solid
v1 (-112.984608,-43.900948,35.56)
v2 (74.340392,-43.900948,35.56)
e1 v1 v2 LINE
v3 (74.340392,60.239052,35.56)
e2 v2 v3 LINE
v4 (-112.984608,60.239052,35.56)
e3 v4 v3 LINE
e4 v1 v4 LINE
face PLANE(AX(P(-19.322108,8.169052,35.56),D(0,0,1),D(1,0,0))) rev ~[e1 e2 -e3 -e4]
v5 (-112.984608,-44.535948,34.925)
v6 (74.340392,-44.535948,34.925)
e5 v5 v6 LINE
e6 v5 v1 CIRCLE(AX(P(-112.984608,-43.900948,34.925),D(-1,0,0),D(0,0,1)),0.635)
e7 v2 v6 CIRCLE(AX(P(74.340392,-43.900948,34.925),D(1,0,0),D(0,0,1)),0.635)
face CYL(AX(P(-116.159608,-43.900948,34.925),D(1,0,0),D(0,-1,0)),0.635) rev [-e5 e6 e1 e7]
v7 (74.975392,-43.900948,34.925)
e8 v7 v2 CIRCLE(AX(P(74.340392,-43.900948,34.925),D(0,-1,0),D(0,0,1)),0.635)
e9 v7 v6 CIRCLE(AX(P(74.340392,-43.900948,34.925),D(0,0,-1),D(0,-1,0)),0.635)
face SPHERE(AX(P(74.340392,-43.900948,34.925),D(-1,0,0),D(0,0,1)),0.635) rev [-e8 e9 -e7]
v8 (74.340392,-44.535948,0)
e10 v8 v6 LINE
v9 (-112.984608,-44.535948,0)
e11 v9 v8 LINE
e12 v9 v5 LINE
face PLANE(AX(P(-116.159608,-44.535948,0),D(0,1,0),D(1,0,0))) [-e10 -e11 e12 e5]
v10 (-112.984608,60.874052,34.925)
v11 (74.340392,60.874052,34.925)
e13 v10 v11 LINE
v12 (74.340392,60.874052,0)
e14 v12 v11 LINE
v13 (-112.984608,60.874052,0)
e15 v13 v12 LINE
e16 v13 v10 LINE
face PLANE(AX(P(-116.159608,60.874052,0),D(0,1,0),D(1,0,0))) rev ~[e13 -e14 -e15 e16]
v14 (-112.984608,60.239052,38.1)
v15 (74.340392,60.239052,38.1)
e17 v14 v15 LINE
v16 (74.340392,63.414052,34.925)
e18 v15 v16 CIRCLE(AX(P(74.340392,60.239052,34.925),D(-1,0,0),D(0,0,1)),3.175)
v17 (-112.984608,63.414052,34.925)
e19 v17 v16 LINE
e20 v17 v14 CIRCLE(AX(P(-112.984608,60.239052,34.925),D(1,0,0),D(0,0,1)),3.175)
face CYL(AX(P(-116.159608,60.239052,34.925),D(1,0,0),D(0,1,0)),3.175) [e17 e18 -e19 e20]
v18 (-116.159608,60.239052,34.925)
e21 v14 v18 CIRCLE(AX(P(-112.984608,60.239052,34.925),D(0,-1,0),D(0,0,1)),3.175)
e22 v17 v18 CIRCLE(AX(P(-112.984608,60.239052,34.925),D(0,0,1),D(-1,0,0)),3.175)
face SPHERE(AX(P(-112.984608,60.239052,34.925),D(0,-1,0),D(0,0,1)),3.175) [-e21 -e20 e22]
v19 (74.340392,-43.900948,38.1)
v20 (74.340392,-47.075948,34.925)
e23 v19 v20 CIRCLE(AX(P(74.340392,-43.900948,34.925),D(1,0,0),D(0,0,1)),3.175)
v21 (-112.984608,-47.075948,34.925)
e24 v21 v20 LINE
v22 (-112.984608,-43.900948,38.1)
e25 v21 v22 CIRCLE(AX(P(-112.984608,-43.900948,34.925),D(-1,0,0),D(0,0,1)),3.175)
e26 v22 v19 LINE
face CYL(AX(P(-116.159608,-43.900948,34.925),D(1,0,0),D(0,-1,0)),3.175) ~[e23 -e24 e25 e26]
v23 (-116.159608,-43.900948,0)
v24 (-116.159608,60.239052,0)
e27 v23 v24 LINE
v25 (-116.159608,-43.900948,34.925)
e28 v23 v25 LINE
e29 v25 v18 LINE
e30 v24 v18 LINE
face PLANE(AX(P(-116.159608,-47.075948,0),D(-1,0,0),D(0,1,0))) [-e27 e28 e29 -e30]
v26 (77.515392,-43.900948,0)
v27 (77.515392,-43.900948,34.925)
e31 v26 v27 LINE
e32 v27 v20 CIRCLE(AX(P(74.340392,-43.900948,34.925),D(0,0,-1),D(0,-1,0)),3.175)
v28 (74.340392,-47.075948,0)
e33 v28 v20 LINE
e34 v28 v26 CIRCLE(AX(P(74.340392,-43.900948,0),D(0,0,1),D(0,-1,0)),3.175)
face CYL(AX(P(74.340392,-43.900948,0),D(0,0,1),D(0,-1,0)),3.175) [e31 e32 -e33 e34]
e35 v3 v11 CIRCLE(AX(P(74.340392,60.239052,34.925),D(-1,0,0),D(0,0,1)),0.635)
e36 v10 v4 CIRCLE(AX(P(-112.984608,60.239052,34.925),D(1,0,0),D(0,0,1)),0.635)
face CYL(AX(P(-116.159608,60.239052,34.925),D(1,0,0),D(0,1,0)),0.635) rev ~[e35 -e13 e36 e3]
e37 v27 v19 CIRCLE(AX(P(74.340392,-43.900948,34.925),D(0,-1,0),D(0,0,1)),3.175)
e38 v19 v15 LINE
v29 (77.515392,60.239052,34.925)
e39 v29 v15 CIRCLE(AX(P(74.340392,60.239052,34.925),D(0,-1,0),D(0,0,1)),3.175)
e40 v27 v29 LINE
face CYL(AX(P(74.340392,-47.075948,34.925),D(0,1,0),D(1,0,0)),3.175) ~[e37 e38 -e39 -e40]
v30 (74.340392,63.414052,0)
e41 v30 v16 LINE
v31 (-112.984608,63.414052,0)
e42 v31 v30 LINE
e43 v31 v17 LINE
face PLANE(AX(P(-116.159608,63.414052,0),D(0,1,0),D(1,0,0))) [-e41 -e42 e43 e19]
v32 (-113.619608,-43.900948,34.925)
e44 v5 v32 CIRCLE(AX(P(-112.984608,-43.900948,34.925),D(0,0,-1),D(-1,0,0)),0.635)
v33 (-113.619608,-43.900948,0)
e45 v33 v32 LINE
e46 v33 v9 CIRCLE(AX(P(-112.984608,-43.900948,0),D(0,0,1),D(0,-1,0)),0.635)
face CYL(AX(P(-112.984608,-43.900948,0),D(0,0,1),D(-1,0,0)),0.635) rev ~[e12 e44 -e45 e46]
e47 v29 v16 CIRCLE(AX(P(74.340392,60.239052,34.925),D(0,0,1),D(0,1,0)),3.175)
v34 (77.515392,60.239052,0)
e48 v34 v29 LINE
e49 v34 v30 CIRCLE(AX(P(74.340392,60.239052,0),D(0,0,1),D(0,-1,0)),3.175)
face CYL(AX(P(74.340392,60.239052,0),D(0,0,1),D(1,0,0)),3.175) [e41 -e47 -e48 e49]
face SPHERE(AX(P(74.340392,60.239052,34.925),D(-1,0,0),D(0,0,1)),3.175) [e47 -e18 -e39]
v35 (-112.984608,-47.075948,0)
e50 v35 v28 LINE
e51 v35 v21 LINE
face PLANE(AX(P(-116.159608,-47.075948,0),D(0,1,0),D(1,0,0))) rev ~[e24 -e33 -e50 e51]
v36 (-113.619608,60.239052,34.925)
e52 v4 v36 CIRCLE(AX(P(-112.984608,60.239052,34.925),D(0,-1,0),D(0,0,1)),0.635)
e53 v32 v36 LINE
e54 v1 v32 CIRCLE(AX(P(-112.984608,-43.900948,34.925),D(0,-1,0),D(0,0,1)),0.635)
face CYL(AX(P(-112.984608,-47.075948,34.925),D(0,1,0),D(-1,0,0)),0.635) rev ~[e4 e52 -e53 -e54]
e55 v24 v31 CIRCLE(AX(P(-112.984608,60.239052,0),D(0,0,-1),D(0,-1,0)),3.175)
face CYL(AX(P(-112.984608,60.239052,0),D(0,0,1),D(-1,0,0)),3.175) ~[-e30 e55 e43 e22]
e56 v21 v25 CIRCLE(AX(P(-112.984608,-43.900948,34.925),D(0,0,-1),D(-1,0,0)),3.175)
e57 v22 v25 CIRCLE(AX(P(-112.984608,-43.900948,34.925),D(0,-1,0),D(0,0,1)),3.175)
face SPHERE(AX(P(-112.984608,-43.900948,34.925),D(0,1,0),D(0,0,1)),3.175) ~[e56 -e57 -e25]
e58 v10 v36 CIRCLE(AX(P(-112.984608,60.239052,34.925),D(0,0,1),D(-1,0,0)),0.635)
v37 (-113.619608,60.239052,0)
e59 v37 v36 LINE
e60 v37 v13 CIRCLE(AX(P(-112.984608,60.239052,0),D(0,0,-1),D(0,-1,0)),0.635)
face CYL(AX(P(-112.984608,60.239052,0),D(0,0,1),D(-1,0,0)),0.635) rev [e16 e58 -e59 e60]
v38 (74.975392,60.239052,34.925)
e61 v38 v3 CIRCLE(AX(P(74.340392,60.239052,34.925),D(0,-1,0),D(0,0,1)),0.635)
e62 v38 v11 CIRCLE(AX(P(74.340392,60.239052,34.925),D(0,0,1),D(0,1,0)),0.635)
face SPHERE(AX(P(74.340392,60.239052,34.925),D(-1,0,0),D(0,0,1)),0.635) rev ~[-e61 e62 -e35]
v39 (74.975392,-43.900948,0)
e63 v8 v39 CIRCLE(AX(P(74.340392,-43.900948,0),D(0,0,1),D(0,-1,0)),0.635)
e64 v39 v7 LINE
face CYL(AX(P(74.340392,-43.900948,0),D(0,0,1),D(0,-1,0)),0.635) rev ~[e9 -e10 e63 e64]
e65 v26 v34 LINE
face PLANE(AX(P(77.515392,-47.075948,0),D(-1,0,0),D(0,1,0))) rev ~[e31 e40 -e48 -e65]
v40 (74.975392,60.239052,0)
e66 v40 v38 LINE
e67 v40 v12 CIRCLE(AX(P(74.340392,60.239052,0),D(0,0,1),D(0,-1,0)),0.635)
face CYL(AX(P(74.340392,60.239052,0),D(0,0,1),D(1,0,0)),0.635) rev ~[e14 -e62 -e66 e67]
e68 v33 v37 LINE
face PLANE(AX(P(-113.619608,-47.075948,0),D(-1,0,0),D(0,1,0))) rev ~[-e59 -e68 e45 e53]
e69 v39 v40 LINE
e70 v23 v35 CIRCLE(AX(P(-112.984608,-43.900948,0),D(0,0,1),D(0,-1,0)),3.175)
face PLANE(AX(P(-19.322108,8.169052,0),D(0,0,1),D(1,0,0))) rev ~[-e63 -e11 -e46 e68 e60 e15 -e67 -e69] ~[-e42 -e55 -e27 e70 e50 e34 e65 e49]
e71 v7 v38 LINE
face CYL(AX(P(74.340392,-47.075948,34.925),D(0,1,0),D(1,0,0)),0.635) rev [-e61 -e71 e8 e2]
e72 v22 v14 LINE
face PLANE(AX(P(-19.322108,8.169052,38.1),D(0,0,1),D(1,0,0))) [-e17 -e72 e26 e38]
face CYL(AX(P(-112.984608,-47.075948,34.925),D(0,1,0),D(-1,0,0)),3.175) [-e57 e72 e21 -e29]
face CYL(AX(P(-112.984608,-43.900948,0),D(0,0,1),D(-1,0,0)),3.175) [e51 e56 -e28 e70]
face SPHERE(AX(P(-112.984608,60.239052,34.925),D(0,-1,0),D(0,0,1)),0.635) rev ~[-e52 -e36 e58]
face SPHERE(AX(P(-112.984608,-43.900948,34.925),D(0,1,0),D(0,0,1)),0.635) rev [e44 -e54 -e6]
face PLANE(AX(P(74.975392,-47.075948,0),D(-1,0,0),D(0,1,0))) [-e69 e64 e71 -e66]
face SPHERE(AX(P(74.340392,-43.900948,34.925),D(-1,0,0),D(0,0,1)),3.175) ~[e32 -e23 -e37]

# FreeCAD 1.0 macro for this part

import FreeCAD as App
import Part
import Sketcher

V = App.Vector
Q = App.Units.Quantity


def edges_at(feature, points):
    """Names of the edges that pass closest to the given points."""
    edges = feature.Shape.Edges
    near = lambda p: min(range(len(edges)), key=lambda i: edges[i].distToShape(Part.Vertex(*p))[0])
    return sorted({f"Edge{near(p) + 1}" for p in points})


def faces_at(feature, points):
    """Names of the faces that lie closest to the given points."""
    faces = feature.Shape.Faces
    near = lambda p: min(range(len(faces)), key=lambda i: faces[i].distToShape(Part.Vertex(*p))[0])
    return sorted({f"Face{near(p) + 1}" for p in points})


def add_polygon(sketch, points):
    """Adds a closed chain of lines whose ends are joined by coincident constraints."""
    first, n = sketch.GeometryCount, len(points)
    for a, b in zip(points, points[1:] + points[:1]):
        sketch.addGeometry(Part.LineSegment(App.Vector(*a, 0), App.Vector(*b, 0)), False)
    for i in range(n):
        sketch.addConstraint(Sketcher.Constraint("Coincident", first + i, 2, first + (i + 1) % n, 1))

doc = App.newDocument("Part")
body = doc.addObject("PartDesign::Body", "Body")

# Sketch on XY plane
sketch1 = doc.addObject("Sketcher::SketchObject", "Sketch")
body.addObject(sketch1)
sketch1.AttachmentSupport = (doc.XY_Plane, [""])
sketch1.MapMode = "FlatFace"
add_polygon(sketch1, [(-116, 63), (-116, -47), (78, -47), (78, 63)])  # lines 0-3
sketch1.addConstraint([
    Sketcher.Constraint("Vertical", 0),
    Sketcher.Constraint("Horizontal", 1),
    Sketcher.Constraint("Vertical", 2),
    Sketcher.Constraint("Horizontal", 3),
    Sketcher.Constraint("DistanceY", 0, 2, 0, 1, Q("4.35 in")),
    Sketcher.Constraint("DistanceX", 1, 1, 1, 2, Q("7.625 in")),
    Sketcher.Constraint("DistanceX", 0, 2, -1, 1, Q("116.159608 mm")),
    Sketcher.Constraint("DistanceY", -1, 1, 2, 2, Q("63.414052 mm")),
])
pad1 = doc.addObject("PartDesign::Pad", "Pad")
body.addObject(pad1)
pad1.Profile = sketch1
pad1.Length = Q("1.5 in")
doc.recompute()

fillet = doc.addObject("PartDesign::Fillet", "Fillet")
body.addObject(fillet)
fillet.Base = (pad1, edges_at(pad1, [
    (-116.16, 8.169, 38.1),
    (-19.322, 63.414, 38.1),
    (-19.322, -47.076, 38.1),
    (77.515, 8.169, 38.1),
    (77.515, 63.414, 19.05),
    (77.515, -47.076, 19.05),
    (-116.16, -47.076, 19.05),
    (-116.16, 63.414, 19.05),
]))
fillet.Radius = Q("0.125 in")
doc.recompute()

thickness = doc.addObject("PartDesign::Thickness", "Thickness")
body.addObject(thickness)
thickness.Base = (fillet, faces_at(fillet, [(-19.322, 8.169, 0)]))
thickness.Value = Q("0.1 in")
thickness.Reversed = True
thickness.Join = "Arc"

doc.recompute()
